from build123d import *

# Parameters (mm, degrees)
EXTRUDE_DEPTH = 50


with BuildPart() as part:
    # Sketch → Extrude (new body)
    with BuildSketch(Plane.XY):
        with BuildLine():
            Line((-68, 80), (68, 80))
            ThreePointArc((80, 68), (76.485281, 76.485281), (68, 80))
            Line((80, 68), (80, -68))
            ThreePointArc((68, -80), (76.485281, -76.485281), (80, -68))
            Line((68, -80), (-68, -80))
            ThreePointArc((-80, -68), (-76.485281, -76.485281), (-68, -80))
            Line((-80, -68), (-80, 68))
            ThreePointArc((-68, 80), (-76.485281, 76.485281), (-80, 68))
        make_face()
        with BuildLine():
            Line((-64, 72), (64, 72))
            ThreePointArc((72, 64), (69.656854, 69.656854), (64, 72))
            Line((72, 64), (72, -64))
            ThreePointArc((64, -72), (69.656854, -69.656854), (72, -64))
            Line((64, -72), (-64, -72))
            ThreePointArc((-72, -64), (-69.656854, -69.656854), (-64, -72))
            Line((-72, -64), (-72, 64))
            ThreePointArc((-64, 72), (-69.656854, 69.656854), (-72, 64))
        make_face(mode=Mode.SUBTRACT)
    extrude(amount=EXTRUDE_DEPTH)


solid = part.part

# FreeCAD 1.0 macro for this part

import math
import FreeCAD as App
import Part
import Sketcher

V = App.Vector
Q = App.Units.Quantity

doc = App.newDocument("Part")
body = doc.addObject("PartDesign::Body", "Body")

sketch1 = doc.addObject("Sketcher::SketchObject", "Sketch")
body.addObject(sketch1)
sketch1.AttachmentSupport = (doc.XY_Plane, [""])
sketch1.MapMode = "FlatFace"
sketch1.addGeometry(Part.LineSegment(V(68, 80, 0), V(-68, 80, 0)), False)
sketch1.addGeometry(Part.ArcOfCircle(Part.Circle(V(-68, 68, 0), V(0, 0, 1), 12), math.radians(90), math.radians(180)), False)
sketch1.addGeometry(Part.LineSegment(V(-80, 68, 0), V(-80, -68, 0)), False)
sketch1.addGeometry(Part.ArcOfCircle(Part.Circle(V(-68, -68, 0), V(0, 0, 1), 12), math.radians(-180), math.radians(-90)), False)
sketch1.addGeometry(Part.LineSegment(V(-68, -80, 0), V(68, -80, 0)), False)
sketch1.addGeometry(Part.ArcOfCircle(Part.Circle(V(68, -68, 0), V(0, 0, 1), 12), math.radians(-90), math.radians(0)), False)
sketch1.addGeometry(Part.LineSegment(V(80, -68, 0), V(80, 68, 0)), False)
sketch1.addGeometry(Part.ArcOfCircle(Part.Circle(V(68, 68, 0), V(0, 0, 1), 12), math.radians(0), math.radians(90)), False)
sketch1.addGeometry(Part.LineSegment(V(-64, 72, 0), V(64, 72, 0)), False)
sketch1.addGeometry(Part.ArcOfCircle(Part.Circle(V(64, 64, 0), V(0, 0, 1), 8), math.radians(0), math.radians(90)), False)
sketch1.addGeometry(Part.LineSegment(V(72, 64, 0), V(72, -64, 0)), False)
sketch1.addGeometry(Part.ArcOfCircle(Part.Circle(V(64, -64, 0), V(0, 0, 1), 8), math.radians(-90), math.radians(0)), False)
sketch1.addGeometry(Part.LineSegment(V(64, -72, 0), V(-64, -72, 0)), False)
sketch1.addGeometry(Part.ArcOfCircle(Part.Circle(V(-64, -64, 0), V(0, 0, 1), 8), math.radians(-180), math.radians(-90)), False)
sketch1.addGeometry(Part.LineSegment(V(-72, -64, 0), V(-72, 64, 0)), False)
sketch1.addGeometry(Part.ArcOfCircle(Part.Circle(V(-64, 64, 0), V(0, 0, 1), 8), math.radians(90), math.radians(180)), False)
sketch1.addConstraint(Sketcher.Constraint("Tangent", 0, 2, 1, 1))
sketch1.addConstraint(Sketcher.Constraint("Tangent", 1, 2, 2, 1))
sketch1.addConstraint(Sketcher.Constraint("Tangent", 2, 2, 3, 1))
sketch1.addConstraint(Sketcher.Constraint("Tangent", 3, 2, 4, 1))
sketch1.addConstraint(Sketcher.Constraint("Tangent", 4, 2, 5, 1))
sketch1.addConstraint(Sketcher.Constraint("Tangent", 5, 2, 6, 1))
sketch1.addConstraint(Sketcher.Constraint("Tangent", 6, 2, 7, 1))
sketch1.addConstraint(Sketcher.Constraint("Tangent", 7, 2, 0, 1))
sketch1.addConstraint(Sketcher.Constraint("Tangent", 8, 2, 9, 2))
sketch1.addConstraint(Sketcher.Constraint("Tangent", 9, 1, 10, 1))
sketch1.addConstraint(Sketcher.Constraint("Tangent", 10, 2, 11, 2))
sketch1.addConstraint(Sketcher.Constraint("Tangent", 11, 1, 12, 1))
sketch1.addConstraint(Sketcher.Constraint("Tangent", 12, 2, 13, 2))
sketch1.addConstraint(Sketcher.Constraint("Tangent", 13, 1, 14, 1))
sketch1.addConstraint(Sketcher.Constraint("Tangent", 14, 2, 15, 2))
sketch1.addConstraint(Sketcher.Constraint("Tangent", 15, 1, 8, 1))
sketch1.addConstraint(Sketcher.Constraint("Horizontal", 0))
sketch1.addConstraint(Sketcher.Constraint("Vertical", 2))
sketch1.addConstraint(Sketcher.Constraint("Horizontal", 4))
sketch1.addConstraint(Sketcher.Constraint("Vertical", 6))
sketch1.addConstraint(Sketcher.Constraint("Horizontal", 8))
sketch1.addConstraint(Sketcher.Constraint("Vertical", 10))
sketch1.addConstraint(Sketcher.Constraint("Horizontal", 12))
sketch1.addConstraint(Sketcher.Constraint("Vertical", 14))
sketch1.addConstraint(Sketcher.Constraint("Equal", 1, 3))
sketch1.addConstraint(Sketcher.Constraint("Equal", 3, 5))
sketch1.addConstraint(Sketcher.Constraint("Equal", 5, 7))
sketch1.addConstraint(Sketcher.Constraint("Equal", 9, 11))
sketch1.addConstraint(Sketcher.Constraint("Equal", 11, 13))
sketch1.addConstraint(Sketcher.Constraint("Equal", 13, 15))
sketch1.addConstraint(Sketcher.Constraint("Symmetric", 1, 3, 5, 3, -1, 1))
sketch1.addConstraint(Sketcher.Constraint("Symmetric", 9, 3, 13, 3, -1, 1))
sketch1.addConstraint(Sketcher.Constraint("Equal", 4, 2))
sketch1.addConstraint(Sketcher.Constraint("Equal", 12, 10))
sketch1.addConstraint(Sketcher.Constraint("Radius", 1, Q("12.000001 mm")))
sketch1.addConstraint(Sketcher.Constraint("Radius", 9, Q("8.000001 mm")))
sketch1.addConstraint(Sketcher.Constraint("DistanceX", 0, 2, 0, 1, Q("136 mm")))
sketch1.addConstraint(Sketcher.Constraint("DistanceX", 8, 1, 8, 2, Q("128 mm")))
pad1 = doc.addObject("PartDesign::Pad", "Pad")
body.addObject(pad1)
pad1.Profile = sketch1
pad1.Length = 50

doc.recompute()
